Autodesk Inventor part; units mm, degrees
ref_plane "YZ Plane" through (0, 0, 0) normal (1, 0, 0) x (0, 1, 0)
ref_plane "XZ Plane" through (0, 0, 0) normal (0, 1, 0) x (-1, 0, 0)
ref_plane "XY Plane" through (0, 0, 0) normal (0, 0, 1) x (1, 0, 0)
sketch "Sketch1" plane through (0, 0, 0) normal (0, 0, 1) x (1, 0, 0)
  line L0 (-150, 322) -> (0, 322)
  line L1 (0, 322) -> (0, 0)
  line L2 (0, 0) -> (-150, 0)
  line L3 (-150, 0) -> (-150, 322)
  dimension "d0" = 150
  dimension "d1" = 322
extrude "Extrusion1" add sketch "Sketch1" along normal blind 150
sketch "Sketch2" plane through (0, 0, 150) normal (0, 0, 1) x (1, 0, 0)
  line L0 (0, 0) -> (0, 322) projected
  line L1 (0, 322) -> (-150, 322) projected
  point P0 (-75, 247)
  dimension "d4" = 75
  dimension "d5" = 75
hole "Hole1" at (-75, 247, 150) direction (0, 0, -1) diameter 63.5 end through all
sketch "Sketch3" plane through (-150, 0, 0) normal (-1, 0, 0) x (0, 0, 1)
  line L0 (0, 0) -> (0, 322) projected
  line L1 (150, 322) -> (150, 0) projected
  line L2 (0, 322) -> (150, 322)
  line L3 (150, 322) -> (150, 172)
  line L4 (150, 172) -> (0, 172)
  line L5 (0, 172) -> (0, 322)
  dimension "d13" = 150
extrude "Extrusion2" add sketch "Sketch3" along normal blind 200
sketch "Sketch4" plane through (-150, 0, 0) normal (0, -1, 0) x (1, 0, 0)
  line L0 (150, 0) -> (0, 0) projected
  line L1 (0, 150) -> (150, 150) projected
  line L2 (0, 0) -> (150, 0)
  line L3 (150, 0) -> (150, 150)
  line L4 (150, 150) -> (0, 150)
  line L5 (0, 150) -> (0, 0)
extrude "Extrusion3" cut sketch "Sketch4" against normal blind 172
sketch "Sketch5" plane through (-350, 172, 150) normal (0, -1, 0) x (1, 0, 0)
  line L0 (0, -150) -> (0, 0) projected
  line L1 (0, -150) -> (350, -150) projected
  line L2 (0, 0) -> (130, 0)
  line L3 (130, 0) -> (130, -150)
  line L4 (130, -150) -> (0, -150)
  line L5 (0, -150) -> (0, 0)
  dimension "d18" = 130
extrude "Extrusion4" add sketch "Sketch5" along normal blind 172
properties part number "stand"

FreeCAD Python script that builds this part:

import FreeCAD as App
import Part
import Sketcher
from FreeCAD import Vector
Q = App.Units.Quantity


def add_polygon(sketch, points):
    """Adds a closed chain of lines whose ends are joined by coincident constraints."""
    first, n = sketch.GeometryCount, len(points)
    for a, b in zip(points, points[1:] + points[:1]):
        sketch.addGeometry(Part.LineSegment(App.Vector(*a, 0), App.Vector(*b, 0)), False)
    for i in range(n):
        sketch.addConstraint(Sketcher.Constraint("Coincident", first + i, 2, first + (i + 1) % n, 1))

doc = App.newDocument("Part")
body = doc.addObject("PartDesign::Body", "Body")

# Sketch on XY plane
sketch1 = doc.addObject("Sketcher::SketchObject", "Sketch")
body.addObject(sketch1)
sketch1.AttachmentSupport = (doc.XY_Plane, [""])
sketch1.MapMode = "FlatFace"
add_polygon(sketch1, [(0, 322), (-150, 322), (-150, 0), (0, 0)])  # lines 0-3
sketch1.addConstraint([
    Sketcher.Constraint("Horizontal", 0),
    Sketcher.Constraint("Vertical", 1),
    Sketcher.Constraint("Horizontal", 2),
    Sketcher.Constraint("Vertical", 3),
    Sketcher.Constraint("Coincident", 2, 2, -1, 1),
    Sketcher.Constraint("DistanceX", 0, 2, 0, 1, Q("150 mm")),
    Sketcher.Constraint("DistanceY", 1, 2, 1, 1, Q("322 mm")),
])
pad1 = doc.addObject("PartDesign::Pad", "Pad")
body.addObject(pad1)
pad1.Profile = sketch1
pad1.Length = 150

# Sketch on XY plane
sketch2 = doc.addObject("Sketcher::SketchObject", "Sketch001")
body.addObject(sketch2)
sketch2.AttachmentSupport = (doc.XY_Plane, [""])
sketch2.MapMode = "FlatFace"
sketch2.AttachmentOffset = App.Placement(Vector(0, 0, 150), App.Rotation())
sketch2.addGeometry(Part.Circle(Vector(-75, 247, 0), Vector(0, 0, 1), 32), False)
sketch2.addConstraint([
    Sketcher.Constraint("Diameter", 0, Q("63.5 mm")),
    Sketcher.Constraint("DistanceX", 0, 3, -1, 1, Q("75 mm")),
    Sketcher.Constraint("DistanceY", -1, 1, 0, 3, Q("247 mm")),
])
doc.recompute()
hole = doc.addObject("PartDesign::Hole", "Hole")
body.addObject(hole)
hole.Profile = sketch2
hole.ThreadType = "None"
hole.Diameter = 63.5
hole.DepthType = "ThroughAll"

# Sketch on YZ plane
sketch3 = doc.addObject("Sketcher::SketchObject", "Sketch002")
body.addObject(sketch3)
sketch3.AttachmentSupport = (doc.YZ_Plane, [""])
sketch3.MapMode = "FlatFace"
sketch3.AttachmentOffset = App.Placement(Vector(0, 0, -150), App.Rotation())
add_polygon(sketch3, [(322, 0), (172, 0), (172, 150), (322, 150)])  # lines 0-3
sketch3.addConstraint([
    Sketcher.Constraint("Horizontal", 0),
    Sketcher.Constraint("Vertical", 1),
    Sketcher.Constraint("Horizontal", 2),
    Sketcher.Constraint("Vertical", 3),
    Sketcher.Constraint("PointOnObject", 0, 2, -1),
    Sketcher.Constraint("Equal", 2, 1),
    Sketcher.Constraint("DistanceX", 0, 2, 0, 1, Q("150 mm")),
    Sketcher.Constraint("DistanceX", -1, 1, 0, 2, Q("172 mm")),
])
pad2 = doc.addObject("PartDesign::Pad", "Pad001")
body.addObject(pad2)
pad2.Profile = sketch3
pad2.Length = 200
pad2.Reversed = True

# Sketch on XZ plane
sketch4 = doc.addObject("Sketcher::SketchObject", "Sketch003")
body.addObject(sketch4)
sketch4.AttachmentSupport = (doc.XZ_Plane, [""])
sketch4.MapMode = "FlatFace"
add_polygon(sketch4, [(-150, 0), (0, 0), (0, 150), (-150, 150)])  # lines 0-3
sketch4.addConstraint([
    Sketcher.Constraint("Horizontal", 0),
    Sketcher.Constraint("Vertical", 1),
    Sketcher.Constraint("Horizontal", 2),
    Sketcher.Constraint("Vertical", 3),
    Sketcher.Constraint("Coincident", 0, 2, -1, 1),
    Sketcher.Constraint("Equal", 2, 1),
    Sketcher.Constraint("DistanceX", 0, 1, 0, 2, Q("150 mm")),
])
pocket1 = doc.addObject("PartDesign::Pocket", "Pocket")
body.addObject(pocket1)
pocket1.Profile = sketch4
pocket1.Length = 172

# Sketch on XZ plane
sketch5 = doc.addObject("Sketcher::SketchObject", "Sketch004")
body.addObject(sketch5)
sketch5.AttachmentSupport = (doc.XZ_Plane, [""])
sketch5.MapMode = "FlatFace"
sketch5.AttachmentOffset = App.Placement(Vector(0, 0, -172), App.Rotation())
add_polygon(sketch5, [(-350, 150), (-350, 0), (-220, 0), (-220, 150)])  # lines 0-3
sketch5.addConstraint([
    Sketcher.Constraint("Vertical", 0),
    Sketcher.Constraint("Horizontal", 1),
    Sketcher.Constraint("Vertical", 2),
    Sketcher.Constraint("Horizontal", 3),
    Sketcher.Constraint("PointOnObject", 0, 2, -1),
    Sketcher.Constraint("DistanceX", 1, 1, 1, 2, Q("130 mm")),
    Sketcher.Constraint("DistanceY", 0, 2, 0, 1, Q("150 mm")),
    Sketcher.Constraint("DistanceX", 0, 2, -1, 1, Q("350 mm")),
])
pad3 = doc.addObject("PartDesign::Pad", "Pad002")
body.addObject(pad3)
pad3.Profile = sketch5
pad3.Length = 172

doc.recompute()
